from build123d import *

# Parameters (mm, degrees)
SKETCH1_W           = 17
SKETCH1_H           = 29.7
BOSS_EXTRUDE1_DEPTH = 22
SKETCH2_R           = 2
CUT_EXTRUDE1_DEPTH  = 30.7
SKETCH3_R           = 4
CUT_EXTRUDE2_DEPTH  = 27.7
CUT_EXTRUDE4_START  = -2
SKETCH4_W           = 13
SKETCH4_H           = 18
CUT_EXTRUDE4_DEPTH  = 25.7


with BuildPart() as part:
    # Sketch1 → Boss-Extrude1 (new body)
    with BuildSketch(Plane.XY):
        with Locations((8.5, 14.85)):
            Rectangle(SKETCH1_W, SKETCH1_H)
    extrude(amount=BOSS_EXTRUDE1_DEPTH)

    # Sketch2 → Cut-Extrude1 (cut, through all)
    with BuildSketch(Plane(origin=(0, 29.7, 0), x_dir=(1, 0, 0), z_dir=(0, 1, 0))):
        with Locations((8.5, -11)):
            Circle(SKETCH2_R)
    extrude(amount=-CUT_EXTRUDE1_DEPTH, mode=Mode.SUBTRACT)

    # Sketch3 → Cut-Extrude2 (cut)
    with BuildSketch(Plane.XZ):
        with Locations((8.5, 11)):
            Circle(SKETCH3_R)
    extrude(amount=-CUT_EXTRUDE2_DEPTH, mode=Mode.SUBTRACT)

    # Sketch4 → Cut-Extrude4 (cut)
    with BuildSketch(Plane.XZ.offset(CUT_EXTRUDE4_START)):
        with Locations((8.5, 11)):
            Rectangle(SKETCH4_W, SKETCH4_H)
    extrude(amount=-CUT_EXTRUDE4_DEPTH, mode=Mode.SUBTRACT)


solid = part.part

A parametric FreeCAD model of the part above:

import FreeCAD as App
import Part
import Sketcher
from FreeCAD import Vector

doc = App.newDocument("Part")
params = doc.addObject("Spreadsheet::Sheet", "Params")
for row, (alias, value) in enumerate([
    ("sketch1_width", "17 mm"),
    ("sketch1_height", "29.7 mm"),
    ("pad1_length", "22 mm"),
    ("sketch2_diameter", "4 mm"),
    ("sketch3_diameter", "8 mm"),
    ("pocket2_length", "27.7 mm"),
    ("sketch4_width", "13 mm"),
    ("sketch4_height", "18 mm"),
    ("pocket3_length", "25.7 mm"),
], start=1):
    params.set(f"A{row}", alias)
    params.set(f"B{row}", "=" + value)
    params.setAlias(f"B{row}", alias)

body = doc.addObject("PartDesign::Body", "Body")

sketch1 = doc.addObject("Sketcher::SketchObject", "Sketch")
body.addObject(sketch1)
sketch1.AttachmentSupport = (doc.XY_Plane, [""])
sketch1.MapMode = "FlatFace"
sketch1.addGeometry([
    Part.LineSegment(Vector(0, 29.7, 0), Vector(0, 0, 0)),
    Part.LineSegment(Vector(0, 0, 0), Vector(17, 0, 0)),
    Part.LineSegment(Vector(17, 0, 0), Vector(17, 29.7, 0)),
    Part.LineSegment(Vector(17, 29.7, 0), Vector(0, 29.7, 0)),
], False)
sketch1.addConstraint([
    Sketcher.Constraint("Coincident", 0, 2, 1, 1),
    Sketcher.Constraint("Coincident", 1, 2, 2, 1),
    Sketcher.Constraint("Coincident", 2, 2, 3, 1),
    Sketcher.Constraint("Coincident", 3, 2, 0, 1),
    Sketcher.Constraint("Vertical", 0),
    Sketcher.Constraint("Horizontal", 1),
    Sketcher.Constraint("Vertical", 2),
    Sketcher.Constraint("Horizontal", 3),
    Sketcher.Constraint("Coincident", 0, 2, -1, 1),
    Sketcher.Constraint("DistanceX", 1, 1, 1, 2, 17.0),
    Sketcher.Constraint("DistanceY", 0, 2, 0, 1, 29.7),
])
sketch1.setExpression("Constraints[9]", "Params.sketch1_width")
sketch1.setExpression("Constraints[10]", "Params.sketch1_height")
pad1 = doc.addObject("PartDesign::Pad", "Pad")
body.addObject(pad1)
pad1.Profile = sketch1
pad1.setExpression("Length", "Params.pad1_length")

sketch2 = doc.addObject("Sketcher::SketchObject", "Sketch001")
body.addObject(sketch2)
sketch2.AttachmentSupport = (doc.XZ_Plane, [""])
sketch2.MapMode = "FlatFace"
sketch2.AttachmentOffset = App.Placement(Vector(0, 0, -29.7), App.Rotation())
sketch2.addGeometry(Part.Circle(Vector(8.5, 11, 0), Vector(0, 0, 1), 2), False)
sketch2.addConstraint([
    Sketcher.Constraint("Diameter", 0, 4.0),
    Sketcher.Constraint("DistanceY", -1, 1, 0, 3, 11.0),
    Sketcher.Constraint("DistanceX", -1, 1, 0, 3, 8.5),
])
sketch2.setExpression("Constraints[0]", "Params.sketch2_diameter")
pocket1 = doc.addObject("PartDesign::Pocket", "Pocket")
body.addObject(pocket1)
pocket1.Profile = sketch2
pocket1.Type = "ThroughAll"
pocket1.Reversed = True

sketch3 = doc.addObject("Sketcher::SketchObject", "Sketch002")
body.addObject(sketch3)
sketch3.AttachmentSupport = (doc.XZ_Plane, [""])
sketch3.MapMode = "FlatFace"
sketch3.addGeometry(Part.Circle(Vector(8.5, 11, 0), Vector(0, 0, 1), 4), False)
sketch3.addConstraint([
    Sketcher.Constraint("Diameter", 0, 8.0),
    Sketcher.Constraint("DistanceY", -1, 1, 0, 3, 11.0),
    Sketcher.Constraint("DistanceX", -1, 1, 0, 3, 8.5),
])
sketch3.setExpression("Constraints[0]", "Params.sketch3_diameter")
pocket2 = doc.addObject("PartDesign::Pocket", "Pocket001")
body.addObject(pocket2)
pocket2.Profile = sketch3
pocket2.setExpression("Length", "Params.pocket2_length")

sketch4 = doc.addObject("Sketcher::SketchObject", "Sketch003")
body.addObject(sketch4)
sketch4.AttachmentSupport = (doc.XZ_Plane, [""])
sketch4.MapMode = "FlatFace"
sketch4.AttachmentOffset = App.Placement(Vector(0, 0, -2), App.Rotation())
sketch4.addGeometry([
    Part.LineSegment(Vector(2, 20, 0), Vector(2, 2, 0)),
    Part.LineSegment(Vector(2, 2, 0), Vector(15, 2, 0)),
    Part.LineSegment(Vector(15, 2, 0), Vector(15, 20, 0)),
    Part.LineSegment(Vector(15, 20, 0), Vector(2, 20, 0)),
], False)
sketch4.addConstraint([
    Sketcher.Constraint("Coincident", 0, 2, 1, 1),
    Sketcher.Constraint("Coincident", 1, 2, 2, 1),
    Sketcher.Constraint("Coincident", 2, 2, 3, 1),
    Sketcher.Constraint("Coincident", 3, 2, 0, 1),
    Sketcher.Constraint("Vertical", 0),
    Sketcher.Constraint("Horizontal", 1),
    Sketcher.Constraint("Vertical", 2),
    Sketcher.Constraint("Horizontal", 3),
    Sketcher.Constraint("DistanceX", 1, 1, 1, 2, 13.0),
    Sketcher.Constraint("DistanceY", 0, 2, 0, 1, 18.0),
    Sketcher.Constraint("DistanceX", -1, 1, 0, 2, 2.0),
    Sketcher.Constraint("DistanceY", -1, 1, 0, 2, 2.0),
])
sketch4.setExpression("Constraints[8]", "Params.sketch4_width")
sketch4.setExpression("Constraints[9]", "Params.sketch4_height")
pocket3 = doc.addObject("PartDesign::Pocket", "Pocket002")
body.addObject(pocket3)
pocket3.Profile = sketch4
pocket3.setExpression("Length", "Params.pocket3_length")

doc.recompute()
